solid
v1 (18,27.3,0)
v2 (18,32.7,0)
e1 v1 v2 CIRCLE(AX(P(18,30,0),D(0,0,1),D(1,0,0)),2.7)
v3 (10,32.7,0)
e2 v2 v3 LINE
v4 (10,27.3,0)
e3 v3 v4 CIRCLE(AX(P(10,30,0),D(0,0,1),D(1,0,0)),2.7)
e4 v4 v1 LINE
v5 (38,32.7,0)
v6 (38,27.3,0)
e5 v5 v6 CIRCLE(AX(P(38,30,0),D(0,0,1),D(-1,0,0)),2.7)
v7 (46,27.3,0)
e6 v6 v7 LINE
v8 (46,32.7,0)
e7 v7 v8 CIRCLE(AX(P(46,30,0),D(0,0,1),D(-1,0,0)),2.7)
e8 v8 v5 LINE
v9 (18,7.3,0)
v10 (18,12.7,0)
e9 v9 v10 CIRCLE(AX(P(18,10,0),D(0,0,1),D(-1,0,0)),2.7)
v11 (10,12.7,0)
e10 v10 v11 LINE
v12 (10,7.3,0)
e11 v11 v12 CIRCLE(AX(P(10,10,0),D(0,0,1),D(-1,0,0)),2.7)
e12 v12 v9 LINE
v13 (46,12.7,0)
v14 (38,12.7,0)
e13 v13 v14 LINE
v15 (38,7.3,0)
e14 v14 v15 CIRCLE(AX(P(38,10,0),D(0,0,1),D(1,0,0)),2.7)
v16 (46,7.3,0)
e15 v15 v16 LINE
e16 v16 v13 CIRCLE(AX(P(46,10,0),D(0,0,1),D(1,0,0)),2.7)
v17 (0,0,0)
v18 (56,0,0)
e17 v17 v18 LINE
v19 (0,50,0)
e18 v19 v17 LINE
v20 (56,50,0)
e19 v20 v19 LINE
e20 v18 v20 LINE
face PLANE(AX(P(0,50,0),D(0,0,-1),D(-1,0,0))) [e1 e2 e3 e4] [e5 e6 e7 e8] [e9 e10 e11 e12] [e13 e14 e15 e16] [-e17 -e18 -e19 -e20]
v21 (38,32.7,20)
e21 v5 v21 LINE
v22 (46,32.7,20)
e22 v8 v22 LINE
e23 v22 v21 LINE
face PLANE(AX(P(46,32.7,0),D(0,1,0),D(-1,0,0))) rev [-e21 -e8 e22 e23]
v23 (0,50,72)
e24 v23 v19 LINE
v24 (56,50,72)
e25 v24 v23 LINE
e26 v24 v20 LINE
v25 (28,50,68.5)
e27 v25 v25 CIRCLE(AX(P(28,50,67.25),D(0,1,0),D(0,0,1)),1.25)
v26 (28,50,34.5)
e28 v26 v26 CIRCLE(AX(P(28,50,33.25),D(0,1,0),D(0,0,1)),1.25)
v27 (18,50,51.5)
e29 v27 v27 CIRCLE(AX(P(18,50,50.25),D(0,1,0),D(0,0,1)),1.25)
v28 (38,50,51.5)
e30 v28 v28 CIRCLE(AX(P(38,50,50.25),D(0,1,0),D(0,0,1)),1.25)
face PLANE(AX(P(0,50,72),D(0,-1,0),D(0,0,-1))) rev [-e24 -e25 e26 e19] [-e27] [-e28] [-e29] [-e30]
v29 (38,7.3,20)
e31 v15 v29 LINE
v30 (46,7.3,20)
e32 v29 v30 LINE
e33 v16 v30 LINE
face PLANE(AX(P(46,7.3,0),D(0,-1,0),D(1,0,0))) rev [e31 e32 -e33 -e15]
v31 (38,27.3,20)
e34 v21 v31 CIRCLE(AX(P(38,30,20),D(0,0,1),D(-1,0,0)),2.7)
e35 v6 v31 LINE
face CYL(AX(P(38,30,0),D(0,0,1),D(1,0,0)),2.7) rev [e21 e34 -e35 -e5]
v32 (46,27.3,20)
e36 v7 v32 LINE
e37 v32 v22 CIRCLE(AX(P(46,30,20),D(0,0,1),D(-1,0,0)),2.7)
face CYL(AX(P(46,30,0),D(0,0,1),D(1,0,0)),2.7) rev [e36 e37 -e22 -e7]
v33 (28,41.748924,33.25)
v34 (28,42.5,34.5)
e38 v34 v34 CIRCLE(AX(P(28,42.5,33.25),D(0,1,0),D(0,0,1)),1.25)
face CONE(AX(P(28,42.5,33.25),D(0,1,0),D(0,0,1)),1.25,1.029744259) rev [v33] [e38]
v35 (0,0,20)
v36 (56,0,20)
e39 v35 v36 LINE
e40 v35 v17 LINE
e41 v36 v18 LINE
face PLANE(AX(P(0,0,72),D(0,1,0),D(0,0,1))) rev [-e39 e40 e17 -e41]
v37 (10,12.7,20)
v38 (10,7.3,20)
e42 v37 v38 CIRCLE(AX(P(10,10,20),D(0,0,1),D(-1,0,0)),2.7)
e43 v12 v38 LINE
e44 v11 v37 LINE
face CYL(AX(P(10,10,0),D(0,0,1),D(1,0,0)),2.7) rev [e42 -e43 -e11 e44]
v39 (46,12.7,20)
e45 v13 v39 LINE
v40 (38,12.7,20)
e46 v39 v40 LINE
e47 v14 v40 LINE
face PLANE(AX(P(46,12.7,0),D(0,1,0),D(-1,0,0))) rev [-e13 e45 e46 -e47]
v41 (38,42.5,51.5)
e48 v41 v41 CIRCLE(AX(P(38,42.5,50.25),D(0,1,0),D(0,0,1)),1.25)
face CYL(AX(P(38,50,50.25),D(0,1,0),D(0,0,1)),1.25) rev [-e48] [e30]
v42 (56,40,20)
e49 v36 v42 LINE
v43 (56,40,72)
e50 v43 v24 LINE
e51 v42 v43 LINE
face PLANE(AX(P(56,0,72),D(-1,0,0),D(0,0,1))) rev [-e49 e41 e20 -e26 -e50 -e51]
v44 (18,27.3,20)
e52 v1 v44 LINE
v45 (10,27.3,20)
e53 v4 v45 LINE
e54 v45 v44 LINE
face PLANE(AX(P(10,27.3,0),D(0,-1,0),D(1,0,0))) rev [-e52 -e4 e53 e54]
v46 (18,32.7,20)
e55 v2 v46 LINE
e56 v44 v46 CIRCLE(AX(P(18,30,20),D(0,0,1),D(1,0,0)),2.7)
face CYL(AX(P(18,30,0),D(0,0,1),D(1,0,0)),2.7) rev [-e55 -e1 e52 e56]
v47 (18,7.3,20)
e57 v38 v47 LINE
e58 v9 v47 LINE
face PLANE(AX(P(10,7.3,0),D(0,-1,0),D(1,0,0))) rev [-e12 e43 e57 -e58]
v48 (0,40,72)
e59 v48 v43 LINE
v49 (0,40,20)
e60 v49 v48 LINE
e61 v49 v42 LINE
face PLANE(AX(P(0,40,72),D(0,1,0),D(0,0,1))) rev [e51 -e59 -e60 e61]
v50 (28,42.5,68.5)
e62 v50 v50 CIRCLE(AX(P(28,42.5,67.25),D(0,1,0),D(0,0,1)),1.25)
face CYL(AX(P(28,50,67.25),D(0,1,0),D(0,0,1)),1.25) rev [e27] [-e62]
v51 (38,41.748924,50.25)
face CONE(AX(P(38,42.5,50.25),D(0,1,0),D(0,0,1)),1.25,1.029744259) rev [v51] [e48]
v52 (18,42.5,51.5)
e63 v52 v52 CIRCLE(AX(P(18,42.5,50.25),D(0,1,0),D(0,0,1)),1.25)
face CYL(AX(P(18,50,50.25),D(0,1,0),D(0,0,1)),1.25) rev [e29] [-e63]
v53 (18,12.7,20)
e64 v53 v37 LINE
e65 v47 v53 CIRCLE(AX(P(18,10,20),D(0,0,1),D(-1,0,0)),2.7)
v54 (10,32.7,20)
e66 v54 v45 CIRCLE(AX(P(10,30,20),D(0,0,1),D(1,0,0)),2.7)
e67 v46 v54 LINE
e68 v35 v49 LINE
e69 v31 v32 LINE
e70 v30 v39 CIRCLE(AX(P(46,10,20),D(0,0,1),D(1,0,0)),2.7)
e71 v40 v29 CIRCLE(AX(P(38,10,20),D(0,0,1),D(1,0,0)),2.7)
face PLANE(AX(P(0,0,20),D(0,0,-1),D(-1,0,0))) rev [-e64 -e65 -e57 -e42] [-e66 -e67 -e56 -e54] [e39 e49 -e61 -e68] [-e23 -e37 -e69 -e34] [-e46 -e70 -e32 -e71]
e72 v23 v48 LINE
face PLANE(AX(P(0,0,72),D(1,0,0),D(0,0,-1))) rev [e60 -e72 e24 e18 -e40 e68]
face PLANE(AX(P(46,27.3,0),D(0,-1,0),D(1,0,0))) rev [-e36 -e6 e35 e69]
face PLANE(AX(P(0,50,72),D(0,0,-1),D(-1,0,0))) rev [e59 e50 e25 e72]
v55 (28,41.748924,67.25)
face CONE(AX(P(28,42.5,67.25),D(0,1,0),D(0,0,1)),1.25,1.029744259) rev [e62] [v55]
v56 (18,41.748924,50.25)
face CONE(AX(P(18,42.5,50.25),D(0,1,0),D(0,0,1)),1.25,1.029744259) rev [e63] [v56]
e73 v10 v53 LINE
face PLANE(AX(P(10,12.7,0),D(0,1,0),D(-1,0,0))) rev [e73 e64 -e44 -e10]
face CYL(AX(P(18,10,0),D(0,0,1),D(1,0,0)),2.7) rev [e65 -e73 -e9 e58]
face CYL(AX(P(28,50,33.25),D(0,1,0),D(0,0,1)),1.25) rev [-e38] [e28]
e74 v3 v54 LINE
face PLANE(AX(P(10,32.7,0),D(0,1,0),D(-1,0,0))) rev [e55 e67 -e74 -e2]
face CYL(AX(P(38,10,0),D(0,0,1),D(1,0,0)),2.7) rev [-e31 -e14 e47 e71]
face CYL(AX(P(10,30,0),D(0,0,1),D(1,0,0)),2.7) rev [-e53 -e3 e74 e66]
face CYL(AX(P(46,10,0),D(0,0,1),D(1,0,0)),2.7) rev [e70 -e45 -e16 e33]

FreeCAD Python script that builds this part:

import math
import FreeCAD as App
import Part
import Sketcher
from FreeCAD import Vector


def add_polygon(sketch, points):
    """Adds a closed chain of lines whose ends are joined by coincident constraints."""
    first, n = sketch.GeometryCount, len(points)
    for a, b in zip(points, points[1:] + points[:1]):
        sketch.addGeometry(Part.LineSegment(App.Vector(*a, 0), App.Vector(*b, 0)), False)
    for i in range(n):
        sketch.addConstraint(Sketcher.Constraint("Coincident", first + i, 2, first + (i + 1) % n, 1))

doc = App.newDocument("Part")
params = doc.addObject("Spreadsheet::Sheet", "Params")
for row, (alias, value) in enumerate([
    ("sketch1_width", "56 mm"),
    ("sketch1_height", "50 mm"),
    ("pad1_length", "72 mm"),
    ("sketch2_width", "40 mm"),
    ("sketch2_height", "52 mm"),
    ("sketch3_diameter", "2.5 mm"),
    ("hole_diameter", "2.5 mm"),
    ("hole_depth", "7.5 mm"),
    ("sketch4_radius", "2.7 mm"),
    ("sketch4_width", "8 mm"),
], start=1):
    params.set(f"A{row}", alias)
    params.set(f"B{row}", "=" + value)
    params.setAlias(f"B{row}", alias)

body = doc.addObject("PartDesign::Body", "Body")

sketch1 = body.newObject("Sketcher::SketchObject", "Sketch")
sketch1.AttachmentSupport = (doc.getObject("XY_Plane"), [""])
sketch1.MapMode = "FlatFace"
add_polygon(sketch1, [(0, 50), (0, 0), (56, 0), (56, 50)])
sketch1.addConstraint(Sketcher.Constraint("Vertical", 0))
sketch1.addConstraint(Sketcher.Constraint("Horizontal", 1))
sketch1.addConstraint(Sketcher.Constraint("Vertical", 2))
sketch1.addConstraint(Sketcher.Constraint("Horizontal", 3))
sketch1.addConstraint(Sketcher.Constraint("Coincident", 0, 2, -1, 1))
sketch1.addConstraint(Sketcher.Constraint("DistanceX", 1, 1, 1, 2, 56.0))
sketch1.addConstraint(Sketcher.Constraint("DistanceY", 0, 2, 0, 1, 50.0))
sketch1.setExpression("Constraints[9]", "Params.sketch1_width")
sketch1.setExpression("Constraints[10]", "Params.sketch1_height")
pad1 = body.newObject("PartDesign::Pad", "Pad")
pad1.Profile = sketch1
pad1.setExpression("Length", "Params.pad1_length")

sketch2 = body.newObject("Sketcher::SketchObject", "Sketch001")
sketch2.AttachmentSupport = (doc.getObject("YZ_Plane"), [""])
sketch2.MapMode = "FlatFace"
sketch2.AttachmentOffset = App.Placement(Vector(0, 0, 56), App.Rotation())
add_polygon(sketch2, [(40, 72), (0, 72), (0, 20), (40, 20)])
sketch2.addConstraint(Sketcher.Constraint("Horizontal", 0))
sketch2.addConstraint(Sketcher.Constraint("Vertical", 1))
sketch2.addConstraint(Sketcher.Constraint("Horizontal", 2))
sketch2.addConstraint(Sketcher.Constraint("Vertical", 3))
sketch2.addConstraint(Sketcher.Constraint("PointOnObject", 0, 2, -2))
sketch2.addConstraint(Sketcher.Constraint("DistanceX", 0, 2, 0, 1, 40.0))
sketch2.addConstraint(Sketcher.Constraint("DistanceY", 1, 2, 1, 1, 52.0))
sketch2.addConstraint(Sketcher.Constraint("DistanceY", -1, 1, 0, 2, 72.0))
sketch2.setExpression("Constraints[9]", "Params.sketch2_width")
sketch2.setExpression("Constraints[10]", "Params.sketch2_height")
pocket1 = body.newObject("PartDesign::Pocket", "Pocket")
pocket1.Profile = sketch2
pocket1.Type = "ThroughAll"

sketch3 = body.newObject("Sketcher::SketchObject", "Sketch002")
sketch3.AttachmentSupport = (doc.getObject("XZ_Plane"), [""])
sketch3.MapMode = "FlatFace"
sketch3.AttachmentOffset = App.Placement(Vector(0, 0, -50), App.Rotation())
sketch3.addGeometry(Part.Circle(Vector(28, 67.25, 0), Vector(0, 0, 1), 1.25), False)
sketch3.addGeometry(Part.Circle(Vector(28, 33.25, 0), Vector(0, 0, 1), 1.25), False)
sketch3.addGeometry(Part.Circle(Vector(18, 50.25, 0), Vector(0, 0, 1), 1.25), False)
sketch3.addGeometry(Part.Circle(Vector(38, 50.25, 0), Vector(0, 0, 1), 1.25), False)
sketch3.addConstraint(Sketcher.Constraint("Equal", 0, 1))
sketch3.addConstraint(Sketcher.Constraint("Equal", 1, 2))
sketch3.addConstraint(Sketcher.Constraint("Equal", 2, 3))
sketch3.addConstraint(Sketcher.Constraint("Horizontal", 2, 3, 3, 3))
sketch3.addConstraint(Sketcher.Constraint("Vertical", 0, 3, 1, 3))
sketch3.addConstraint(Sketcher.Constraint("Diameter", 0, 2.5))
sketch3.addConstraint(Sketcher.Constraint("DistanceX", -1, 1, 0, 3, 28.0))
sketch3.addConstraint(Sketcher.Constraint("DistanceX", -1, 1, 2, 3, 18.0))
sketch3.addConstraint(Sketcher.Constraint("DistanceX", -1, 1, 3, 3, 38.0))
sketch3.addConstraint(Sketcher.Constraint("DistanceY", 1, 3, 0, 3, 34.0))
sketch3.addConstraint(Sketcher.Constraint("DistanceY", 2, 3, 0, 3, 17.0))
sketch3.addConstraint(Sketcher.Constraint("DistanceY", -1, 1, 0, 3, 67.25))
sketch3.setExpression("Constraints[5]", "Params.sketch3_diameter")
doc.recompute()
hole = body.newObject("PartDesign::Hole", "Hole")
hole.Profile = sketch3
hole.ThreadType = "None"
hole.setExpression("Diameter", "Params.hole_diameter")
hole.DepthType = "Dimension"
hole.setExpression("Depth", "Params.hole_depth")
hole.DrillPoint = "Angled"
hole.DrillPointAngle = 118
hole.Reversed = True

sketch4 = body.newObject("Sketcher::SketchObject", "Sketch003")
sketch4.AttachmentSupport = (doc.getObject("XY_Plane"), [""])
sketch4.MapMode = "FlatFace"
sketch4.AttachmentOffset = App.Placement(Vector(0, 0, 20), App.Rotation())
sketch4.addGeometry(Part.LineSegment(Vector(18, 32.7, 0), Vector(10, 32.7, 0)), False)
sketch4.addGeometry(Part.ArcOfCircle(Part.Circle(Vector(10, 30, 0), Vector(0, 0, 1), 2.7), math.radians(90), math.radians(270)), False)
sketch4.addGeometry(Part.LineSegment(Vector(10, 27.3, 0), Vector(18, 27.3, 0)), False)
sketch4.addGeometry(Part.ArcOfCircle(Part.Circle(Vector(18, 30, 0), Vector(0, 0, 1), 2.7), math.radians(-90), math.radians(90)), False)
sketch4.addGeometry(Part.LineSegment(Vector(46, 32.7, 0), Vector(38, 32.7, 0)), False)
sketch4.addGeometry(Part.ArcOfCircle(Part.Circle(Vector(38, 30, 0), Vector(0, 0, 1), 2.7), math.radians(90), math.radians(270)), False)
sketch4.addGeometry(Part.LineSegment(Vector(38, 27.3, 0), Vector(46, 27.3, 0)), False)
sketch4.addGeometry(Part.ArcOfCircle(Part.Circle(Vector(46, 30, 0), Vector(0, 0, 1), 2.7), math.radians(-90), math.radians(90)), False)
sketch4.addGeometry(Part.LineSegment(Vector(10, 7.3, 0), Vector(18, 7.3, 0)), False)
sketch4.addGeometry(Part.ArcOfCircle(Part.Circle(Vector(18, 10, 0), Vector(0, 0, 1), 2.7), math.radians(-90), math.radians(90)), False)
sketch4.addGeometry(Part.LineSegment(Vector(18, 12.7, 0), Vector(10, 12.7, 0)), False)
sketch4.addGeometry(Part.ArcOfCircle(Part.Circle(Vector(10, 10, 0), Vector(0, 0, 1), 2.7), math.radians(90), math.radians(270)), False)
sketch4.addGeometry(Part.LineSegment(Vector(38, 7.3, 0), Vector(46, 7.3, 0)), False)
sketch4.addGeometry(Part.ArcOfCircle(Part.Circle(Vector(46, 10, 0), Vector(0, 0, 1), 2.7), math.radians(-90), math.radians(90)), False)
sketch4.addGeometry(Part.LineSegment(Vector(46, 12.7, 0), Vector(38, 12.7, 0)), False)
sketch4.addGeometry(Part.ArcOfCircle(Part.Circle(Vector(38, 10, 0), Vector(0, 0, 1), 2.7), math.radians(90), math.radians(270)), False)
sketch4.addConstraint(Sketcher.Constraint("Tangent", 0, 2, 1, 1))
sketch4.addConstraint(Sketcher.Constraint("Tangent", 1, 2, 2, 1))
sketch4.addConstraint(Sketcher.Constraint("Tangent", 2, 2, 3, 1))
sketch4.addConstraint(Sketcher.Constraint("Tangent", 3, 2, 0, 1))
sketch4.addConstraint(Sketcher.Constraint("Tangent", 4, 2, 5, 1))
sketch4.addConstraint(Sketcher.Constraint("Tangent", 5, 2, 6, 1))
sketch4.addConstraint(Sketcher.Constraint("Tangent", 6, 2, 7, 1))
sketch4.addConstraint(Sketcher.Constraint("Tangent", 7, 2, 4, 1))
sketch4.addConstraint(Sketcher.Constraint("Tangent", 8, 2, 9, 1))
sketch4.addConstraint(Sketcher.Constraint("Tangent", 9, 2, 10, 1))
sketch4.addConstraint(Sketcher.Constraint("Tangent", 10, 2, 11, 1))
sketch4.addConstraint(Sketcher.Constraint("Tangent", 11, 2, 8, 1))
sketch4.addConstraint(Sketcher.Constraint("Tangent", 12, 2, 13, 1))
sketch4.addConstraint(Sketcher.Constraint("Tangent", 13, 2, 14, 1))
sketch4.addConstraint(Sketcher.Constraint("Tangent", 14, 2, 15, 1))
sketch4.addConstraint(Sketcher.Constraint("Tangent", 15, 2, 12, 1))
sketch4.addConstraint(Sketcher.Constraint("Horizontal", 0))
sketch4.addConstraint(Sketcher.Constraint("Horizontal", 2))
sketch4.addConstraint(Sketcher.Constraint("Horizontal", 4))
sketch4.addConstraint(Sketcher.Constraint("Horizontal", 6))
sketch4.addConstraint(Sketcher.Constraint("Horizontal", 8))
sketch4.addConstraint(Sketcher.Constraint("Horizontal", 10))
sketch4.addConstraint(Sketcher.Constraint("Horizontal", 12))
sketch4.addConstraint(Sketcher.Constraint("Horizontal", 14))
sketch4.addConstraint(Sketcher.Constraint("Equal", 3, 5))
sketch4.addConstraint(Sketcher.Constraint("Equal", 7, 9))
sketch4.addConstraint(Sketcher.Constraint("Equal", 11, 13))
sketch4.addConstraint(Sketcher.Constraint("Horizontal", 3, 3, 5, 3))
sketch4.addConstraint(Sketcher.Constraint("Horizontal", 11, 3, 13, 3))
sketch4.addConstraint(Sketcher.Constraint("Vertical", 3, 3, 9, 3))
sketch4.addConstraint(Sketcher.Constraint("Vertical", 1, 3, 11, 3))
sketch4.addConstraint(Sketcher.Constraint("Vertical", 7, 3, 13, 3))
sketch4.addConstraint(Sketcher.Constraint("Vertical", 5, 3, 15, 3))
sketch4.addConstraint(Sketcher.Constraint("Equal", 2, 4))
sketch4.addConstraint(Sketcher.Constraint("Radius", 1, 2.7))
sketch4.addConstraint(Sketcher.Constraint("DistanceX", 0, 2, 0, 1, 8.0))
sketch4.addConstraint(Sketcher.Constraint("DistanceX", -1, 1, 1, 3, 10.0))
sketch4.addConstraint(Sketcher.Constraint("DistanceY", -1, 1, 1, 3, 30.0))
sketch4.addConstraint(Sketcher.Constraint("DistanceX", -1, 1, 5, 3, 38.0))
sketch4.addConstraint(Sketcher.Constraint("DistanceY", -1, 1, 9, 3, 10.0))
sketch4.setExpression("Constraints[34]", "Params.sketch4_radius")
sketch4.setExpression("Constraints[35]", "Params.sketch4_width")
pocket2 = body.newObject("PartDesign::Pocket", "Pocket001")
pocket2.Profile = sketch4
pocket2.Type = "ThroughAll"

doc.recompute()
